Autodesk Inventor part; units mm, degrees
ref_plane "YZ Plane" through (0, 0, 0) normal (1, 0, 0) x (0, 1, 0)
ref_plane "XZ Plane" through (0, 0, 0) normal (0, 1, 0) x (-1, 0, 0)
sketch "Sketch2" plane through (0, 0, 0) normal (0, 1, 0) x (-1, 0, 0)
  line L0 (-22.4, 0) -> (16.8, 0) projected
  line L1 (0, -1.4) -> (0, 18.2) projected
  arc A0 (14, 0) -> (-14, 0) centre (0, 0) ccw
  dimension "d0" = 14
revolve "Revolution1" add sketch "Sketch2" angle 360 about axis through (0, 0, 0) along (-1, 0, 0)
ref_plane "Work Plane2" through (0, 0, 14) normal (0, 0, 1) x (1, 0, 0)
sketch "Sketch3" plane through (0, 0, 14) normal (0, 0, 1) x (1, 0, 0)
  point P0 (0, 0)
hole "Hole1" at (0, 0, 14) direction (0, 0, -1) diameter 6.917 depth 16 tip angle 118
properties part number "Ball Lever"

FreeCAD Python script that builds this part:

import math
import FreeCAD as App
import Part
import Sketcher
from FreeCAD import Vector

doc = App.newDocument("Part")
body = doc.addObject("PartDesign::Body", "Body")

# Sketch on XZ plane
sketch1 = body.newObject("Sketcher::SketchObject", "Sketch")
sketch1.AttachmentSupport = (doc.getObject("XZ_Plane"), [""])
sketch1.MapMode = "FlatFace"
sketch1.addGeometry(Part.LineSegment(Vector(14, 0, 0), Vector(-14, 0, 0)), False)
sketch1.addGeometry(Part.ArcOfCircle(Part.Circle(Vector(0, 0, 0), Vector(0, 0, 1), 14), math.radians(0), math.radians(180)), False)
sketch1.addConstraint(Sketcher.Constraint("Coincident", 0, 1, 1, 1))
sketch1.addConstraint(Sketcher.Constraint("Coincident", 1, 2, 0, 2))
sketch1.addConstraint(Sketcher.Constraint("Horizontal", 0))
sketch1.addConstraint(Sketcher.Constraint("Coincident", 1, 3, -1, 1))
sketch1.addConstraint(Sketcher.Constraint("PointOnObject", 0, 1, -1))
sketch1.addConstraint(Sketcher.Constraint("Radius", 1, 14.0))
revolution = body.newObject("PartDesign::Revolution", "Revolution")
revolution.Profile = sketch1
revolution.ReferenceAxis = (sketch1, ["H_Axis"])
revolution.Angle = 360

# Sketch on XY plane
sketch2 = body.newObject("Sketcher::SketchObject", "Sketch001")
sketch2.AttachmentSupport = (doc.getObject("XY_Plane"), [""])
sketch2.MapMode = "FlatFace"
sketch2.AttachmentOffset = App.Placement(Vector(0, 0, 14), App.Rotation())
sketch2.addGeometry(Part.Circle(Vector(0, 0, 0), Vector(0, 0, 1), 3.5), False)
sketch2.addConstraint(Sketcher.Constraint("Coincident", 0, 3, -1, 1))
sketch2.addConstraint(Sketcher.Constraint("Diameter", 0, 6.917))
doc.recompute()
hole = body.newObject("PartDesign::Hole", "Hole")
hole.Profile = sketch2
hole.ThreadType = "None"
hole.Diameter = 6.917
hole.DepthType = "Dimension"
hole.Depth = 16
hole.DrillPoint = "Angled"
hole.DrillPointAngle = 118

doc.recompute()
